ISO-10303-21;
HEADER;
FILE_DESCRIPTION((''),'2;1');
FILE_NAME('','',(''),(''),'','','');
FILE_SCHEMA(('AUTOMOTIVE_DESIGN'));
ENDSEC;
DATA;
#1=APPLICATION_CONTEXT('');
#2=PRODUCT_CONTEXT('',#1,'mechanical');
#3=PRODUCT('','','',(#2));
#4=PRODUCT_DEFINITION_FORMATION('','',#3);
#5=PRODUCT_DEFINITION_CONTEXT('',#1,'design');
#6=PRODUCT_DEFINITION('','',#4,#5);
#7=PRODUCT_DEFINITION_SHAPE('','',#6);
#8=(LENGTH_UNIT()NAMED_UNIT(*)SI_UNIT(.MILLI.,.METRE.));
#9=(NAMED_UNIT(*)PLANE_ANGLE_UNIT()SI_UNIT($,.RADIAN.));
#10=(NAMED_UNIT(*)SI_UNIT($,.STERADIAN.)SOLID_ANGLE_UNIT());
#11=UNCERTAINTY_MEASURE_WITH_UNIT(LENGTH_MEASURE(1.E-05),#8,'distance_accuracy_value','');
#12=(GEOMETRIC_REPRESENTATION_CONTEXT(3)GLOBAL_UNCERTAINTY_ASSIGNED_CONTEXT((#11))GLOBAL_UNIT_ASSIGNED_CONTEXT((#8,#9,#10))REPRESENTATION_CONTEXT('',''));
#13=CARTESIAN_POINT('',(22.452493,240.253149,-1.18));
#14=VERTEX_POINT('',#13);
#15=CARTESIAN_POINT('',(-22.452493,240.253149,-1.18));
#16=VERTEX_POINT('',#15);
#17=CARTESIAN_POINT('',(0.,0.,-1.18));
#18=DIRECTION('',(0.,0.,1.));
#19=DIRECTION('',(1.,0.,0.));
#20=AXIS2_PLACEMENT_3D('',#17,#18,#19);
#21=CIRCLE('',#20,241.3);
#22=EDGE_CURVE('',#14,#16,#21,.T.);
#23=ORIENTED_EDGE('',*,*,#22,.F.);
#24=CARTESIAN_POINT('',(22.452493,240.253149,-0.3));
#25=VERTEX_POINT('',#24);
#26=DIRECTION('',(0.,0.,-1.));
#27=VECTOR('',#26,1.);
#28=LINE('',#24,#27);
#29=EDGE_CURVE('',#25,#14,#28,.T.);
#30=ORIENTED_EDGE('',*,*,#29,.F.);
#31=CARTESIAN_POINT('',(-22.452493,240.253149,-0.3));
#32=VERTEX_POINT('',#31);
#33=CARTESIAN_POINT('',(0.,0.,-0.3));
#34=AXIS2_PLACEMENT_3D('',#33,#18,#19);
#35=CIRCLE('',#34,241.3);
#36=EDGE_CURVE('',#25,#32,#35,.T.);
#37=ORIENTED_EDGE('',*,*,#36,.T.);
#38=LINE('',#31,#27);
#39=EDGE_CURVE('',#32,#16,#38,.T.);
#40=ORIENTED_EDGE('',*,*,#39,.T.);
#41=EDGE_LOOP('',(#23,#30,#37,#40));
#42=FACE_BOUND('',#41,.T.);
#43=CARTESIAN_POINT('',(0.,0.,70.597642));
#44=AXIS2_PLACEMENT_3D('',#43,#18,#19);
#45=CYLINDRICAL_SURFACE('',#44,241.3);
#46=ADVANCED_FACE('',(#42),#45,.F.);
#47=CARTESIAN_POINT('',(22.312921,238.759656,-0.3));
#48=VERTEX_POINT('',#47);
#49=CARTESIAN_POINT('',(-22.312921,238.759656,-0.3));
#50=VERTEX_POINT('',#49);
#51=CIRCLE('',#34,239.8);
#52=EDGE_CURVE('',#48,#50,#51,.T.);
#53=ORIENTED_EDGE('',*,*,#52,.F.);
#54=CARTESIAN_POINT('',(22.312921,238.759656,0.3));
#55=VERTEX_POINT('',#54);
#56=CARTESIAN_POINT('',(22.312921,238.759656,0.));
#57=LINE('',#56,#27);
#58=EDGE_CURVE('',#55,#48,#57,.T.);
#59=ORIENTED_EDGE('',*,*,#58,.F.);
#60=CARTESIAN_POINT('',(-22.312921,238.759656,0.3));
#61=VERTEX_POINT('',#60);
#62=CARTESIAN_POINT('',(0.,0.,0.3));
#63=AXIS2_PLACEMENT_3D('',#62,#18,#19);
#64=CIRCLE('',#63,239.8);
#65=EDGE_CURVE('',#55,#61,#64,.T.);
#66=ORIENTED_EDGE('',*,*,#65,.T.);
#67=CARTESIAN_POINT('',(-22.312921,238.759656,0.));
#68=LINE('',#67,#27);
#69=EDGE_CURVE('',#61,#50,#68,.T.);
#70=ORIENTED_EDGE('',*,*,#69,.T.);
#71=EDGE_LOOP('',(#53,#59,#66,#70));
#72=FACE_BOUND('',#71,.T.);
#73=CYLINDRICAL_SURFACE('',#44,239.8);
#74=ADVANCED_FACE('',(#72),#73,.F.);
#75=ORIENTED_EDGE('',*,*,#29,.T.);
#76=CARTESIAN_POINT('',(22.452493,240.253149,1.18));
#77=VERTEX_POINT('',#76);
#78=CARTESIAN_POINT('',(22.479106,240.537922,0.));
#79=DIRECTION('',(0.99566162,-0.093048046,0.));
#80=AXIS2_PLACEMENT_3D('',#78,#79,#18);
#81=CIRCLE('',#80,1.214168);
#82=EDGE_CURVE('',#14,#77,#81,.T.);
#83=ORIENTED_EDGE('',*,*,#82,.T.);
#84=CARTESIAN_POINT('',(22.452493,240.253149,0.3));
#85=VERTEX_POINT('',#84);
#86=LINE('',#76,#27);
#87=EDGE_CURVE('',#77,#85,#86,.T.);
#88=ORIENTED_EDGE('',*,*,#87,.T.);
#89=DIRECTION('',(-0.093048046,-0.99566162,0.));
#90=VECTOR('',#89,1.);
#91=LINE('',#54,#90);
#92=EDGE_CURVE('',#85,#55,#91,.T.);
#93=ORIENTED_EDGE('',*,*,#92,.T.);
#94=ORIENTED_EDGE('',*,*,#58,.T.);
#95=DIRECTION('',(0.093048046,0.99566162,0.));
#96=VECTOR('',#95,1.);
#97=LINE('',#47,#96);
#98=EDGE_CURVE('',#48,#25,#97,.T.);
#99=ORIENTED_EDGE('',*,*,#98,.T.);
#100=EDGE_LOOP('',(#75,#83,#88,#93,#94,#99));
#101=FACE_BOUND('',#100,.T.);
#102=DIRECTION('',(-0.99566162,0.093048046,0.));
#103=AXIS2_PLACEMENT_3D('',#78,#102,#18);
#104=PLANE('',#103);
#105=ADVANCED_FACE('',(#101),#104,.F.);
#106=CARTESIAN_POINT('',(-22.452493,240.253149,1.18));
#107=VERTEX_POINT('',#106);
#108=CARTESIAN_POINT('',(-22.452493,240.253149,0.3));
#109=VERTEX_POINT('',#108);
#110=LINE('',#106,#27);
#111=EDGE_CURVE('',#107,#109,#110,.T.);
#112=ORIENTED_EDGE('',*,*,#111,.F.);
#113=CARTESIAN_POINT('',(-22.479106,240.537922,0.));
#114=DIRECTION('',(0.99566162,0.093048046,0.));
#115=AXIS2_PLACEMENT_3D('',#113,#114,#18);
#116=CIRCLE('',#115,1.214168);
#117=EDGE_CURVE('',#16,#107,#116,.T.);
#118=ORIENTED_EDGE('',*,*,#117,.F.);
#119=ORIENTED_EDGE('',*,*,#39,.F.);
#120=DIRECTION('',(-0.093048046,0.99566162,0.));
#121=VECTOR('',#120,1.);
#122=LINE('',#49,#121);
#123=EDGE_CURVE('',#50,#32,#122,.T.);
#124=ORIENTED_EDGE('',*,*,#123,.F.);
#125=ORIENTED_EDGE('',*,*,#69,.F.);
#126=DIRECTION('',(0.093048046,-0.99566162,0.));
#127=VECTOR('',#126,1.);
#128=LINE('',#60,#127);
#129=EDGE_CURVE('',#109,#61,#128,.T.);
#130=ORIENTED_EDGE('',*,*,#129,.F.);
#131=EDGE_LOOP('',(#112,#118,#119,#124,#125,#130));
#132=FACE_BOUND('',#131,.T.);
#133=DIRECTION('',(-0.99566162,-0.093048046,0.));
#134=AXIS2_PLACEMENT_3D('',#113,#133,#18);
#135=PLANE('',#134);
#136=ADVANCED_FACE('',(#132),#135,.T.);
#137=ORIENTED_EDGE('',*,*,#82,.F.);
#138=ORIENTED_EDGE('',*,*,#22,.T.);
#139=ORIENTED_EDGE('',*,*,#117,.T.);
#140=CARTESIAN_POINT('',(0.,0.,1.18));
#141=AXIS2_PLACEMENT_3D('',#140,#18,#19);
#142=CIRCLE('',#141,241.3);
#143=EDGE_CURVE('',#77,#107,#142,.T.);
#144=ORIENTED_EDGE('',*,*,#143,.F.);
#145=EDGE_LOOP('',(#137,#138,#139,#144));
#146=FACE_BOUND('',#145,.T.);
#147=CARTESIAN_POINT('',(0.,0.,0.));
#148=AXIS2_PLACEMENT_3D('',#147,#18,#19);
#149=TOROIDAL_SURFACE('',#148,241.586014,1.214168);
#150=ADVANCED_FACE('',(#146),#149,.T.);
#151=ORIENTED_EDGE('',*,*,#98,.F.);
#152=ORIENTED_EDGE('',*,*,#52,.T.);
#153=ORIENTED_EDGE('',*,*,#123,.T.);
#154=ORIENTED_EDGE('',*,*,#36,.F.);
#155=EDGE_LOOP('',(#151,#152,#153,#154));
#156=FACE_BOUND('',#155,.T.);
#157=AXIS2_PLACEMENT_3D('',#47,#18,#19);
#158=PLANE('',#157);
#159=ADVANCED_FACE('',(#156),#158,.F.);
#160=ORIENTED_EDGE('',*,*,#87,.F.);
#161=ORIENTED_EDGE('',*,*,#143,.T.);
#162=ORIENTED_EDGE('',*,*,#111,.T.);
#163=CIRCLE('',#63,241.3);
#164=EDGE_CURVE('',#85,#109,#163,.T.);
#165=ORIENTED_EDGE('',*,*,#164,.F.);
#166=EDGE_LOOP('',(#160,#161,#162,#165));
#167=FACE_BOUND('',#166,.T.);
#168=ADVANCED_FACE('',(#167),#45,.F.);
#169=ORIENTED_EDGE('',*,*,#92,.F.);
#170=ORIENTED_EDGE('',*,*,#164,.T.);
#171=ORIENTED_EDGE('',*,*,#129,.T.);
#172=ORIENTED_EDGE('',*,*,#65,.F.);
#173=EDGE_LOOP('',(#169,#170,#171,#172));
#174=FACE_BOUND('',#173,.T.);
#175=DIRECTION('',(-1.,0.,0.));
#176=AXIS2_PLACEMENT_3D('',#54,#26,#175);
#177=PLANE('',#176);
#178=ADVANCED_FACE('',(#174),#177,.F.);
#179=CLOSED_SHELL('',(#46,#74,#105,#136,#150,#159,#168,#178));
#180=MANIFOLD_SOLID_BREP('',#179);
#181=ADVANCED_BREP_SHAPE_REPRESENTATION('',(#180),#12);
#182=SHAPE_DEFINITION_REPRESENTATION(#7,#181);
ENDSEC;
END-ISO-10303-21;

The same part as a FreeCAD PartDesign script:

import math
import FreeCAD as App
import Part
import Sketcher
from FreeCAD import Vector

doc = App.newDocument("Part")
body = doc.addObject("PartDesign::Body", "Body")

# Sketch on YZ plane
sketch1 = body.newObject("Sketcher::SketchObject", "Sketch")
sketch1.AttachmentSupport = (doc.getObject("YZ_Plane"), [""])
sketch1.MapMode = "FlatFace"
sketch1.addGeometry(Part.LineSegment(Vector(239.8, -0.3, 0), Vector(241.3, -0.3, 0)), False)
sketch1.addGeometry(Part.LineSegment(Vector(241.3, -0.3, 0), Vector(241.3, -1.18, 0)), False)
sketch1.addGeometry(Part.ArcOfCircle(Part.Circle(Vector(241.586014, 0, 0), Vector(0, 0, 1), 1.214168), math.radians(-103.624857), math.radians(103.624857)), False)
sketch1.addGeometry(Part.LineSegment(Vector(241.3, 1.18, 0), Vector(241.3, 0.3, 0)), False)
sketch1.addGeometry(Part.LineSegment(Vector(241.3, 0.3, 0), Vector(239.8, 0.3, 0)), False)
sketch1.addGeometry(Part.LineSegment(Vector(239.8, 0.3, 0), Vector(239.8, -0.3, 0)), False)
sketch1.addConstraint(Sketcher.Constraint("Coincident", 0, 2, 1, 1))
sketch1.addConstraint(Sketcher.Constraint("Coincident", 1, 2, 2, 1))
sketch1.addConstraint(Sketcher.Constraint("Coincident", 2, 2, 3, 1))
sketch1.addConstraint(Sketcher.Constraint("Coincident", 3, 2, 4, 1))
sketch1.addConstraint(Sketcher.Constraint("Coincident", 4, 2, 5, 1))
sketch1.addConstraint(Sketcher.Constraint("Coincident", 5, 2, 0, 1))
sketch1.addConstraint(Sketcher.Constraint("Horizontal", 0))
sketch1.addConstraint(Sketcher.Constraint("Vertical", 1))
sketch1.addConstraint(Sketcher.Constraint("Vertical", 3))
sketch1.addConstraint(Sketcher.Constraint("Horizontal", 4))
sketch1.addConstraint(Sketcher.Constraint("Vertical", 5))
sketch1.addConstraint(Sketcher.Constraint("Symmetric", 1, 2, 2, 2, -1))
sketch1.addConstraint(Sketcher.Constraint("Equal", 1, 3))
sketch1.addConstraint(Sketcher.Constraint("DistanceX", 0, 1, 0, 2, 1.5))
sketch1.addConstraint(Sketcher.Constraint("DistanceY", 5, 2, 5, 1, 0.6))
sketch1.addConstraint(Sketcher.Constraint("DistanceY", 1, 2, 1, 1, 0.88))
sketch1.addConstraint(Sketcher.Constraint("DistanceX", -1, 1, 0, 2, 241.3))
sketch1.addConstraint(Sketcher.Constraint("Radius", 2, 1.214168))
revolution = body.newObject("PartDesign::Revolution", "Revolution")
revolution.Profile = sketch1
revolution.ReferenceAxis = (sketch1, ["V_Axis"])
revolution.Angle = 5.338983
revolution.Reversed = True

# Sketch on YZ plane
sketch2 = body.newObject("Sketcher::SketchObject", "Sketch001")
sketch2.AttachmentSupport = (doc.getObject("YZ_Plane"), [""])
sketch2.MapMode = "FlatFace"
sketch2.addGeometry(Part.LineSegment(Vector(239.8, -0.3, 0), Vector(241.3, -0.3, 0)), False)
sketch2.addGeometry(Part.LineSegment(Vector(241.3, -0.3, 0), Vector(241.3, -1.18, 0)), False)
sketch2.addGeometry(Part.ArcOfCircle(Part.Circle(Vector(241.586014, 0, 0), Vector(0, 0, 1), 1.214168), math.radians(-103.624857), math.radians(103.624857)), False)
sketch2.addGeometry(Part.LineSegment(Vector(241.3, 1.18, 0), Vector(241.3, 0.3, 0)), False)
sketch2.addGeometry(Part.LineSegment(Vector(241.3, 0.3, 0), Vector(239.8, 0.3, 0)), False)
sketch2.addGeometry(Part.LineSegment(Vector(239.8, 0.3, 0), Vector(239.8, -0.3, 0)), False)
sketch2.addConstraint(Sketcher.Constraint("Coincident", 0, 2, 1, 1))
sketch2.addConstraint(Sketcher.Constraint("Coincident", 1, 2, 2, 1))
sketch2.addConstraint(Sketcher.Constraint("Coincident", 2, 2, 3, 1))
sketch2.addConstraint(Sketcher.Constraint("Coincident", 3, 2, 4, 1))
sketch2.addConstraint(Sketcher.Constraint("Coincident", 4, 2, 5, 1))
sketch2.addConstraint(Sketcher.Constraint("Coincident", 5, 2, 0, 1))
sketch2.addConstraint(Sketcher.Constraint("Horizontal", 0))
sketch2.addConstraint(Sketcher.Constraint("Vertical", 1))
sketch2.addConstraint(Sketcher.Constraint("Vertical", 3))
sketch2.addConstraint(Sketcher.Constraint("Horizontal", 4))
sketch2.addConstraint(Sketcher.Constraint("Vertical", 5))
sketch2.addConstraint(Sketcher.Constraint("Symmetric", 1, 2, 2, 2, -1))
sketch2.addConstraint(Sketcher.Constraint("Equal", 1, 3))
sketch2.addConstraint(Sketcher.Constraint("DistanceX", 0, 1, 0, 2, 1.5))
sketch2.addConstraint(Sketcher.Constraint("DistanceY", 5, 2, 5, 1, 0.6))
sketch2.addConstraint(Sketcher.Constraint("DistanceY", 1, 2, 1, 1, 0.88))
sketch2.addConstraint(Sketcher.Constraint("DistanceX", -1, 1, 0, 2, 241.3))
sketch2.addConstraint(Sketcher.Constraint("Radius", 2, 1.214168))
revolution2 = body.newObject("PartDesign::Revolution", "Revolution001")
revolution2.Profile = sketch2
revolution2.ReferenceAxis = (sketch2, ["V_Axis"])
revolution2.Angle = 5.338983

doc.recompute()
